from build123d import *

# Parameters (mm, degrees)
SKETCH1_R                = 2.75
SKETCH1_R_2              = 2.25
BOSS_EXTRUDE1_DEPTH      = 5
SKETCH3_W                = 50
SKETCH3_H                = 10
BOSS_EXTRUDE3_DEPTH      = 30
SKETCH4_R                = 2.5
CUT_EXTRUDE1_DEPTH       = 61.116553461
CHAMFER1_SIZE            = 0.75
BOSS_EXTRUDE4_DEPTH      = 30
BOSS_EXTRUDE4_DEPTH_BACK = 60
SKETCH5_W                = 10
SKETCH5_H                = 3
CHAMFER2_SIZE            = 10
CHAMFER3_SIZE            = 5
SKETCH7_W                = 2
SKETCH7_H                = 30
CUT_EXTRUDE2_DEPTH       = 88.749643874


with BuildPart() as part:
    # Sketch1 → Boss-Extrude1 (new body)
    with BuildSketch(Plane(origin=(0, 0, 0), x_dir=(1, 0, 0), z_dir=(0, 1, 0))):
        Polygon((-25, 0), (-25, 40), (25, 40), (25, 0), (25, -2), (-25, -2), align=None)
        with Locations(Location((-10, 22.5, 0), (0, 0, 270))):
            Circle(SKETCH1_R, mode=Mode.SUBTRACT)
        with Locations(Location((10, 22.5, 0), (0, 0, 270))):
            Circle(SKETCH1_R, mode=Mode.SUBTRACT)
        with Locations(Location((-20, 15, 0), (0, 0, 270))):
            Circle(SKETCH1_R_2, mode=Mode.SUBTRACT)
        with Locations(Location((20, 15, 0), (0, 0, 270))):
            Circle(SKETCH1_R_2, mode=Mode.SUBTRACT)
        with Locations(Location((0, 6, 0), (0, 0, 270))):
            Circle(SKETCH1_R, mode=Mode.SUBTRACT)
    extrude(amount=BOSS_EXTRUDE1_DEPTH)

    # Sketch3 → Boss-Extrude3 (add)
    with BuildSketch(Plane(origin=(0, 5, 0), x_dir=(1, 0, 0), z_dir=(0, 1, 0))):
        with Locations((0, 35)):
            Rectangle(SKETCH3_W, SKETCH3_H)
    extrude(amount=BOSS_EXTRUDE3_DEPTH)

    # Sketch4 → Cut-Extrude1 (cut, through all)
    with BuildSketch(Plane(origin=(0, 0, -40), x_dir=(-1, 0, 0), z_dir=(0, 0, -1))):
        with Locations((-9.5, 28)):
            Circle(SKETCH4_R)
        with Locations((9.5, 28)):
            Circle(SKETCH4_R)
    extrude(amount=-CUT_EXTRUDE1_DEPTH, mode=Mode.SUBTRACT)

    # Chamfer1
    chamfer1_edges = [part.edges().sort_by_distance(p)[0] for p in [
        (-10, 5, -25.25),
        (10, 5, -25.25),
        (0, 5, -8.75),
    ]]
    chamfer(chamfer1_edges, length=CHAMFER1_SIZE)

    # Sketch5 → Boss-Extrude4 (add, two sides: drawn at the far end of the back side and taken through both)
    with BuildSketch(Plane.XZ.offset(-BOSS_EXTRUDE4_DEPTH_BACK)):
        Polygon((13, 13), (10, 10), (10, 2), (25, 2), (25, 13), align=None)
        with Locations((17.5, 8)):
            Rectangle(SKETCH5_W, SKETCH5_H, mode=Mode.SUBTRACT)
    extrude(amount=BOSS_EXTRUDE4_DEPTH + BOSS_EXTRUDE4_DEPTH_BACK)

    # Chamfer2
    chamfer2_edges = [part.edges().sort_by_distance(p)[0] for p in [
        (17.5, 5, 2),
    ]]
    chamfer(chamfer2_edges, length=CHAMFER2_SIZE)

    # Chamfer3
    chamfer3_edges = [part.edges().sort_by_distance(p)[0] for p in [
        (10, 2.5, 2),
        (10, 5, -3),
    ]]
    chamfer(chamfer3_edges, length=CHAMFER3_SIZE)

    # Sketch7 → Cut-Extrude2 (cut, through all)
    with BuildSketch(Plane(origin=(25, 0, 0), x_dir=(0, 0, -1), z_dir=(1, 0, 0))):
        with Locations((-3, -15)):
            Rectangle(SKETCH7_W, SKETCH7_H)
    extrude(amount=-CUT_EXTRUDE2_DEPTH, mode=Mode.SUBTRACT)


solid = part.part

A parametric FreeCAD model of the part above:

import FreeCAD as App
import Part
import Sketcher

V = App.Vector
Q = App.Units.Quantity


def edges_at(feature, points):
    """Names of the edges that pass closest to the given points."""
    edges = feature.Shape.Edges
    near = lambda p: min(range(len(edges)), key=lambda i: edges[i].distToShape(Part.Vertex(*p))[0])
    return sorted({f"Edge{near(p) + 1}" for p in points})


def add_polygon(sketch, points):
    """Adds a closed chain of lines whose ends are joined by coincident constraints."""
    first, n = sketch.GeometryCount, len(points)
    for a, b in zip(points, points[1:] + points[:1]):
        sketch.addGeometry(Part.LineSegment(App.Vector(*a, 0), App.Vector(*b, 0)), False)
    for i in range(n):
        sketch.addConstraint(Sketcher.Constraint("Coincident", first + i, 2, first + (i + 1) % n, 1))

doc = App.newDocument("Part")
params = doc.addObject("Spreadsheet::Sheet", "Params")
for row, (alias, value) in enumerate([
    ("sketch1_diameter", "5.5 mm"),
    ("sketch1_diameter2", "4.5 mm"),
    ("sketch1_width", "50 mm"),
    ("sketch1_height", "42 mm"),
    ("pad1_length", "5 mm"),
    ("sketch2_width", "50 mm"),
    ("sketch2_height", "10 mm"),
    ("pad2_length", "30 mm"),
    ("sketch3_diameter", "5 mm"),
    ("chamfer_size", "0.75 mm"),
    ("sketch4_width", "15 mm"),
    ("sketch4_width2", "12 mm"),
    ("sketch4_width3", "10 mm"),
    ("sketch4_height", "8 mm"),
    ("sketch4_height2", "11 mm"),
    ("pad3_length", "30 mm"),
    ("pad3_length2", "60 mm"),
    ("chamfer2_size", "10 mm"),
    ("chamfer3_size", "5 mm"),
    ("sketch5_width", "30 mm"),
    ("sketch5_height", "2 mm"),
], start=1):
    params.set(f"A{row}", alias)
    params.set(f"B{row}", "=" + value)
    params.setAlias(f"B{row}", alias)

body = doc.addObject("PartDesign::Body", "Body")

# Sketch on XZ plane
sketch1 = body.newObject("Sketcher::SketchObject", "Sketch")
sketch1.AttachmentSupport = (doc.getObject("XZ_Plane"), [""])
sketch1.MapMode = "FlatFace"
add_polygon(sketch1, [(-25, -40), (-25, 2), (25, 2), (25, -40)])  # lines 0-3
sketch1.addGeometry(Part.Circle(V(0, -6, 0), V(0, 0, 1), 2.75), False)  # 4
sketch1.addGeometry(Part.Circle(V(20, -15, 0), V(0, 0, 1), 2.25), False)  # 5
sketch1.addGeometry(Part.Circle(V(10, -22.5, 0), V(0, 0, 1), 2.75), False)  # 6
sketch1.addGeometry(Part.Circle(V(-20, -15, 0), V(0, 0, 1), 2.25), False)  # 7
sketch1.addGeometry(Part.Circle(V(-10, -22.5, 0), V(0, 0, 1), 2.75), False)  # 8
sketch1.addConstraint([
    Sketcher.Constraint("Vertical", 0),
    Sketcher.Constraint("Horizontal", 1),
    Sketcher.Constraint("Vertical", 2),
    Sketcher.Constraint("Horizontal", 3),
    Sketcher.Constraint("Equal", 4, 6),
    Sketcher.Constraint("Equal", 5, 7),
    Sketcher.Constraint("Equal", 6, 8),
    Sketcher.Constraint("Symmetric", 5, 3, 7, 3, -2),
    Sketcher.Constraint("Symmetric", 6, 3, 8, 3, -2),
    Sketcher.Constraint("PointOnObject", 4, 3, -2),
    Sketcher.Constraint("Diameter", 4, Q("5.5 mm")),
    Sketcher.Constraint("Diameter", 5, Q("4.5 mm")),
    Sketcher.Constraint("DistanceX", 1, 1, 1, 2, Q("50 mm")),
    Sketcher.Constraint("DistanceY", 0, 1, 0, 2, Q("42 mm")),
    Sketcher.Constraint("DistanceY", 4, 3, -1, 1, Q("6 mm")),
    Sketcher.Constraint("DistanceX", -1, 1, 5, 3, Q("20 mm")),
    Sketcher.Constraint("DistanceY", 5, 3, -1, 1, Q("15 mm")),
    Sketcher.Constraint("DistanceX", -1, 1, 6, 3, Q("10 mm")),
    Sketcher.Constraint("DistanceX", 0, 2, -1, 1, Q("25 mm")),
    Sketcher.Constraint("DistanceY", -1, 1, 0, 2, Q("2 mm")),
    Sketcher.Constraint("DistanceY", 6, 3, -1, 1, Q("22.5 mm")),
])
sketch1.setExpression("Constraints[14]", "Params.sketch1_diameter")
sketch1.setExpression("Constraints[15]", "Params.sketch1_diameter2")
sketch1.setExpression("Constraints[16]", "Params.sketch1_width")
sketch1.setExpression("Constraints[17]", "Params.sketch1_height")
pad1 = body.newObject("PartDesign::Pad", "Pad")
pad1.Profile = sketch1
pad1.setExpression("Length", "Params.pad1_length")
pad1.Reversed = True

# Sketch on XZ plane
sketch2 = body.newObject("Sketcher::SketchObject", "Sketch001")
sketch2.AttachmentSupport = (doc.getObject("XZ_Plane"), [""])
sketch2.MapMode = "FlatFace"
sketch2.AttachmentOffset = App.Placement(V(0, 0, -5), App.Rotation())
add_polygon(sketch2, [(-25, -40), (-25, -30), (25, -30), (25, -40)])  # lines 0-3
sketch2.addConstraint([
    Sketcher.Constraint("Vertical", 0),
    Sketcher.Constraint("Horizontal", 1),
    Sketcher.Constraint("Vertical", 2),
    Sketcher.Constraint("Horizontal", 3),
    Sketcher.Constraint("DistanceX", 1, 1, 1, 2, Q("50 mm")),
    Sketcher.Constraint("DistanceY", 0, 1, 0, 2, Q("10 mm")),
    Sketcher.Constraint("DistanceX", 0, 2, -1, 1, Q("25 mm")),
    Sketcher.Constraint("DistanceY", 0, 2, -1, 1, Q("30 mm")),
])
sketch2.setExpression("Constraints[8]", "Params.sketch2_width")
sketch2.setExpression("Constraints[9]", "Params.sketch2_height")
pad2 = body.newObject("PartDesign::Pad", "Pad001")
pad2.Profile = sketch2
pad2.setExpression("Length", "Params.pad2_length")
pad2.Reversed = True

# Sketch on XY plane
sketch3 = body.newObject("Sketcher::SketchObject", "Sketch002")
sketch3.AttachmentSupport = (doc.getObject("XY_Plane"), [""])
sketch3.MapMode = "FlatFace"
sketch3.AttachmentOffset = App.Placement(V(0, 0, -40), App.Rotation())
sketch3.addGeometry([
    Part.Circle(V(9.5, 28, 0), V(0, 0, 1), 2.5),
    Part.Circle(V(-9.5, 28, 0), V(0, 0, 1), 2.5),
], False)
sketch3.addConstraint([
    Sketcher.Constraint("Equal", 0, 1),
    Sketcher.Constraint("Symmetric", 0, 3, 1, 3, -2),
    Sketcher.Constraint("Diameter", 0, Q("5 mm")),
    Sketcher.Constraint("DistanceY", -1, 1, 0, 3, Q("28 mm")),
    Sketcher.Constraint("DistanceX", 1, 3, 0, 3, Q("19 mm")),
])
sketch3.setExpression("Constraints[2]", "Params.sketch3_diameter")
pocket1 = body.newObject("PartDesign::Pocket", "Pocket")
pocket1.Profile = sketch3
pocket1.Type = "ThroughAll"
pocket1.Reversed = True
doc.recompute()

chamfer = body.newObject("PartDesign::Chamfer", "Chamfer")
chamfer.Base = (pocket1, edges_at(pocket1, [(-10, 5, -25.25), (10, 5, -25.25), (0, 5, -8.75)]))
chamfer.setExpression("Size", "Params.chamfer_size")

# Sketch on XZ plane
sketch4 = body.newObject("Sketcher::SketchObject", "Sketch003")
sketch4.AttachmentSupport = (doc.getObject("XZ_Plane"), [""])
sketch4.MapMode = "FlatFace"
add_polygon(sketch4, [(13, 13), (10, 10), (10, 2), (25, 2), (25, 13)])  # lines 0-4
add_polygon(sketch4, [(22.5, 6.5), (12.5, 6.5), (12.5, 9.5), (22.5, 9.5)])  # lines 5-8
sketch4.addConstraint([
    Sketcher.Constraint("Vertical", 1),
    Sketcher.Constraint("Horizontal", 2),
    Sketcher.Constraint("Vertical", 3),
    Sketcher.Constraint("Horizontal", 4),
    Sketcher.Constraint("Horizontal", 5),
    Sketcher.Constraint("Vertical", 6),
    Sketcher.Constraint("Horizontal", 7),
    Sketcher.Constraint("Vertical", 8),
    Sketcher.Constraint("DistanceX", 2, 1, 2, 2, Q("15 mm")),
    Sketcher.Constraint("DistanceX", 4, 2, 4, 1, Q("12 mm")),
    Sketcher.Constraint("DistanceX", 5, 2, 5, 1, Q("10 mm")),
    Sketcher.Constraint("DistanceY", 1, 2, 1, 1, Q("8 mm")),
    Sketcher.Constraint("DistanceY", 3, 1, 3, 2, Q("11 mm")),
    Sketcher.Constraint("DistanceY", 6, 1, 6, 2, Q("3 mm")),
    Sketcher.Constraint("DistanceX", -1, 1, 0, 2, Q("10 mm")),
    Sketcher.Constraint("DistanceY", -1, 1, 0, 2, Q("10 mm")),
    Sketcher.Constraint("DistanceX", -1, 1, 5, 2, Q("12.5 mm")),
    Sketcher.Constraint("DistanceY", -1, 1, 5, 2, Q("6.5 mm")),
])
sketch4.setExpression("Constraints[17]", "Params.sketch4_width")
sketch4.setExpression("Constraints[18]", "Params.sketch4_width2")
sketch4.setExpression("Constraints[19]", "Params.sketch4_width3")
sketch4.setExpression("Constraints[20]", "Params.sketch4_height")
sketch4.setExpression("Constraints[21]", "Params.sketch4_height2")
pad3 = body.newObject("PartDesign::Pad", "Pad002")
pad3.Profile = sketch4
pad3.Type = "TwoLengths"
pad3.setExpression("Length", "Params.pad3_length")
pad3.setExpression("Length2", "Params.pad3_length2")
doc.recompute()

chamfer2 = body.newObject("PartDesign::Chamfer", "Chamfer001")
chamfer2.Base = (pad3, edges_at(pad3, [(17.5, 5, 2)]))
chamfer2.setExpression("Size", "Params.chamfer2_size")
doc.recompute()

chamfer3 = body.newObject("PartDesign::Chamfer", "Chamfer002")
chamfer3.Base = (chamfer2, edges_at(chamfer2, [(10, 2.5, 2), (10, 5, -3)]))
chamfer3.setExpression("Size", "Params.chamfer3_size")

# Sketch on YZ plane
sketch5 = body.newObject("Sketcher::SketchObject", "Sketch004")
sketch5.AttachmentSupport = (doc.getObject("YZ_Plane"), [""])
sketch5.MapMode = "FlatFace"
sketch5.AttachmentOffset = App.Placement(V(0, 0, 25), App.Rotation())
add_polygon(sketch5, [(0, 4), (-30, 4), (-30, 2), (0, 2)])  # lines 0-3
sketch5.addConstraint([
    Sketcher.Constraint("Horizontal", 0),
    Sketcher.Constraint("Vertical", 1),
    Sketcher.Constraint("Horizontal", 2),
    Sketcher.Constraint("Vertical", 3),
    Sketcher.Constraint("PointOnObject", 2, 2, -2),
    Sketcher.Constraint("DistanceX", 0, 2, 0, 1, Q("30 mm")),
    Sketcher.Constraint("DistanceY", 1, 2, 1, 1, Q("2 mm")),
    Sketcher.Constraint("DistanceY", -1, 1, 0, 2, Q("4 mm")),
])
sketch5.setExpression("Constraints[9]", "Params.sketch5_width")
sketch5.setExpression("Constraints[10]", "Params.sketch5_height")
pocket2 = body.newObject("PartDesign::Pocket", "Pocket001")
pocket2.Profile = sketch5
pocket2.Type = "ThroughAll"

doc.recompute()
